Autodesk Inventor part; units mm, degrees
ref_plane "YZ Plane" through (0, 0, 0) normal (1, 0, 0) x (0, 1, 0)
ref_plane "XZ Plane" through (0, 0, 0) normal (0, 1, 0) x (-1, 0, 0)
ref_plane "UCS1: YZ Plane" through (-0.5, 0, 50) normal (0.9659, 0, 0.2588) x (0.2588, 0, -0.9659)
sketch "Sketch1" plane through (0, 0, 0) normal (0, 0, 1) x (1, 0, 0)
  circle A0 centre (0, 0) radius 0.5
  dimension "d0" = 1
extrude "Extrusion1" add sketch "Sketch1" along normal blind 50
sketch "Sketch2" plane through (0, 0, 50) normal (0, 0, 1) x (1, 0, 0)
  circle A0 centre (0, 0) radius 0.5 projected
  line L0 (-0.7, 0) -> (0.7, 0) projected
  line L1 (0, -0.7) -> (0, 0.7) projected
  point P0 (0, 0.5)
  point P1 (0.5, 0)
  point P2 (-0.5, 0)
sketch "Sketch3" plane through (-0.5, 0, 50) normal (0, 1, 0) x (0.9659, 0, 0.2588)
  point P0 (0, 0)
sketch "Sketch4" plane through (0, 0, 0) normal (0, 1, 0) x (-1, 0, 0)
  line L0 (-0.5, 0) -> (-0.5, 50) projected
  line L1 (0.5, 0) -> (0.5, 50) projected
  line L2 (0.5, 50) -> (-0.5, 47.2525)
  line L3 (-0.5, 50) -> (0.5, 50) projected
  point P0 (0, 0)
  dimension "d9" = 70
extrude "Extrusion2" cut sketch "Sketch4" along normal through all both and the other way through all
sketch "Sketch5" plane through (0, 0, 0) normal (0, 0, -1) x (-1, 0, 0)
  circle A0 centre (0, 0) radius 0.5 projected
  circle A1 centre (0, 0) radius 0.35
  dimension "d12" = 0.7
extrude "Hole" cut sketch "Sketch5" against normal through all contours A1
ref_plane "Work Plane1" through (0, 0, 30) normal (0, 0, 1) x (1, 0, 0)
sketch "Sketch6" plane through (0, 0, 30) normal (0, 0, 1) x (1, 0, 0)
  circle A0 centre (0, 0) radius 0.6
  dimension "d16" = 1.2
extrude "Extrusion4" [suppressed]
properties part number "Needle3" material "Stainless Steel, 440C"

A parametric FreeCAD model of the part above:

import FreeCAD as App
import Part
import Sketcher
from FreeCAD import Vector
Q = App.Units.Quantity


def add_polygon(sketch, points):
    """Adds a closed chain of lines whose ends are joined by coincident constraints."""
    first, n = sketch.GeometryCount, len(points)
    for a, b in zip(points, points[1:] + points[:1]):
        sketch.addGeometry(Part.LineSegment(App.Vector(*a, 0), App.Vector(*b, 0)), False)
    for i in range(n):
        sketch.addConstraint(Sketcher.Constraint("Coincident", first + i, 2, first + (i + 1) % n, 1))

doc = App.newDocument("Part")
body = doc.addObject("PartDesign::Body", "Body")

sketch1 = body.newObject("Sketcher::SketchObject", "Sketch")
sketch1.AttachmentSupport = (doc.getObject("XY_Plane"), [""])
sketch1.MapMode = "FlatFace"
sketch1.addGeometry(Part.Circle(Vector(0, 0, 0), Vector(0, 0, 1), 0.5), False)
sketch1.addConstraint(Sketcher.Constraint("Coincident", 0, 3, -1, 1))
sketch1.addConstraint(Sketcher.Constraint("Diameter", 0, 1.0))
pad1 = body.newObject("PartDesign::Pad", "Pad")
pad1.Profile = sketch1
pad1.Length = 50

sketch2 = body.newObject("Sketcher::SketchObject", "Sketch001")
sketch2.AttachmentSupport = (doc.getObject("XZ_Plane"), [""])
sketch2.MapMode = "FlatFace"
add_polygon(sketch2, [(0.5, 50), (0.5, 47.3), (-0.5, 50)])
sketch2.addConstraint(Sketcher.Constraint("Vertical", 0))
sketch2.addConstraint(Sketcher.Constraint("Horizontal", 2))
sketch2.addConstraint(Sketcher.Constraint("DistanceX", 2, 1, 2, 2, 1.0))
sketch2.addConstraint(Sketcher.Constraint("Angle", 1, Q("109.9998 deg")))
sketch2.addConstraint(Sketcher.Constraint("DistanceY", -1, 1, 1, 2, 50.0))
sketch2.addConstraint(Sketcher.Constraint("DistanceX", -1, 1, 0, 2, 0.5))
pocket1 = body.newObject("PartDesign::Pocket", "Pocket")
pocket1.Profile = sketch2
pocket1.Type = "ThroughAll"
pocket1.Midplane = True

sketch3 = body.newObject("Sketcher::SketchObject", "Sketch002")
sketch3.AttachmentSupport = (doc.getObject("XY_Plane"), [""])
sketch3.MapMode = "FlatFace"
sketch3.addGeometry(Part.Circle(Vector(0, 0, 0), Vector(0, 0, 1), 0.35), False)
sketch3.addConstraint(Sketcher.Constraint("Coincident", 0, 3, -1, 1))
sketch3.addConstraint(Sketcher.Constraint("Diameter", 0, 0.7))
pocket2 = body.newObject("PartDesign::Pocket", "Pocket001")
pocket2.Profile = sketch3
pocket2.Type = "ThroughAll"
pocket2.Reversed = True

doc.recompute()
